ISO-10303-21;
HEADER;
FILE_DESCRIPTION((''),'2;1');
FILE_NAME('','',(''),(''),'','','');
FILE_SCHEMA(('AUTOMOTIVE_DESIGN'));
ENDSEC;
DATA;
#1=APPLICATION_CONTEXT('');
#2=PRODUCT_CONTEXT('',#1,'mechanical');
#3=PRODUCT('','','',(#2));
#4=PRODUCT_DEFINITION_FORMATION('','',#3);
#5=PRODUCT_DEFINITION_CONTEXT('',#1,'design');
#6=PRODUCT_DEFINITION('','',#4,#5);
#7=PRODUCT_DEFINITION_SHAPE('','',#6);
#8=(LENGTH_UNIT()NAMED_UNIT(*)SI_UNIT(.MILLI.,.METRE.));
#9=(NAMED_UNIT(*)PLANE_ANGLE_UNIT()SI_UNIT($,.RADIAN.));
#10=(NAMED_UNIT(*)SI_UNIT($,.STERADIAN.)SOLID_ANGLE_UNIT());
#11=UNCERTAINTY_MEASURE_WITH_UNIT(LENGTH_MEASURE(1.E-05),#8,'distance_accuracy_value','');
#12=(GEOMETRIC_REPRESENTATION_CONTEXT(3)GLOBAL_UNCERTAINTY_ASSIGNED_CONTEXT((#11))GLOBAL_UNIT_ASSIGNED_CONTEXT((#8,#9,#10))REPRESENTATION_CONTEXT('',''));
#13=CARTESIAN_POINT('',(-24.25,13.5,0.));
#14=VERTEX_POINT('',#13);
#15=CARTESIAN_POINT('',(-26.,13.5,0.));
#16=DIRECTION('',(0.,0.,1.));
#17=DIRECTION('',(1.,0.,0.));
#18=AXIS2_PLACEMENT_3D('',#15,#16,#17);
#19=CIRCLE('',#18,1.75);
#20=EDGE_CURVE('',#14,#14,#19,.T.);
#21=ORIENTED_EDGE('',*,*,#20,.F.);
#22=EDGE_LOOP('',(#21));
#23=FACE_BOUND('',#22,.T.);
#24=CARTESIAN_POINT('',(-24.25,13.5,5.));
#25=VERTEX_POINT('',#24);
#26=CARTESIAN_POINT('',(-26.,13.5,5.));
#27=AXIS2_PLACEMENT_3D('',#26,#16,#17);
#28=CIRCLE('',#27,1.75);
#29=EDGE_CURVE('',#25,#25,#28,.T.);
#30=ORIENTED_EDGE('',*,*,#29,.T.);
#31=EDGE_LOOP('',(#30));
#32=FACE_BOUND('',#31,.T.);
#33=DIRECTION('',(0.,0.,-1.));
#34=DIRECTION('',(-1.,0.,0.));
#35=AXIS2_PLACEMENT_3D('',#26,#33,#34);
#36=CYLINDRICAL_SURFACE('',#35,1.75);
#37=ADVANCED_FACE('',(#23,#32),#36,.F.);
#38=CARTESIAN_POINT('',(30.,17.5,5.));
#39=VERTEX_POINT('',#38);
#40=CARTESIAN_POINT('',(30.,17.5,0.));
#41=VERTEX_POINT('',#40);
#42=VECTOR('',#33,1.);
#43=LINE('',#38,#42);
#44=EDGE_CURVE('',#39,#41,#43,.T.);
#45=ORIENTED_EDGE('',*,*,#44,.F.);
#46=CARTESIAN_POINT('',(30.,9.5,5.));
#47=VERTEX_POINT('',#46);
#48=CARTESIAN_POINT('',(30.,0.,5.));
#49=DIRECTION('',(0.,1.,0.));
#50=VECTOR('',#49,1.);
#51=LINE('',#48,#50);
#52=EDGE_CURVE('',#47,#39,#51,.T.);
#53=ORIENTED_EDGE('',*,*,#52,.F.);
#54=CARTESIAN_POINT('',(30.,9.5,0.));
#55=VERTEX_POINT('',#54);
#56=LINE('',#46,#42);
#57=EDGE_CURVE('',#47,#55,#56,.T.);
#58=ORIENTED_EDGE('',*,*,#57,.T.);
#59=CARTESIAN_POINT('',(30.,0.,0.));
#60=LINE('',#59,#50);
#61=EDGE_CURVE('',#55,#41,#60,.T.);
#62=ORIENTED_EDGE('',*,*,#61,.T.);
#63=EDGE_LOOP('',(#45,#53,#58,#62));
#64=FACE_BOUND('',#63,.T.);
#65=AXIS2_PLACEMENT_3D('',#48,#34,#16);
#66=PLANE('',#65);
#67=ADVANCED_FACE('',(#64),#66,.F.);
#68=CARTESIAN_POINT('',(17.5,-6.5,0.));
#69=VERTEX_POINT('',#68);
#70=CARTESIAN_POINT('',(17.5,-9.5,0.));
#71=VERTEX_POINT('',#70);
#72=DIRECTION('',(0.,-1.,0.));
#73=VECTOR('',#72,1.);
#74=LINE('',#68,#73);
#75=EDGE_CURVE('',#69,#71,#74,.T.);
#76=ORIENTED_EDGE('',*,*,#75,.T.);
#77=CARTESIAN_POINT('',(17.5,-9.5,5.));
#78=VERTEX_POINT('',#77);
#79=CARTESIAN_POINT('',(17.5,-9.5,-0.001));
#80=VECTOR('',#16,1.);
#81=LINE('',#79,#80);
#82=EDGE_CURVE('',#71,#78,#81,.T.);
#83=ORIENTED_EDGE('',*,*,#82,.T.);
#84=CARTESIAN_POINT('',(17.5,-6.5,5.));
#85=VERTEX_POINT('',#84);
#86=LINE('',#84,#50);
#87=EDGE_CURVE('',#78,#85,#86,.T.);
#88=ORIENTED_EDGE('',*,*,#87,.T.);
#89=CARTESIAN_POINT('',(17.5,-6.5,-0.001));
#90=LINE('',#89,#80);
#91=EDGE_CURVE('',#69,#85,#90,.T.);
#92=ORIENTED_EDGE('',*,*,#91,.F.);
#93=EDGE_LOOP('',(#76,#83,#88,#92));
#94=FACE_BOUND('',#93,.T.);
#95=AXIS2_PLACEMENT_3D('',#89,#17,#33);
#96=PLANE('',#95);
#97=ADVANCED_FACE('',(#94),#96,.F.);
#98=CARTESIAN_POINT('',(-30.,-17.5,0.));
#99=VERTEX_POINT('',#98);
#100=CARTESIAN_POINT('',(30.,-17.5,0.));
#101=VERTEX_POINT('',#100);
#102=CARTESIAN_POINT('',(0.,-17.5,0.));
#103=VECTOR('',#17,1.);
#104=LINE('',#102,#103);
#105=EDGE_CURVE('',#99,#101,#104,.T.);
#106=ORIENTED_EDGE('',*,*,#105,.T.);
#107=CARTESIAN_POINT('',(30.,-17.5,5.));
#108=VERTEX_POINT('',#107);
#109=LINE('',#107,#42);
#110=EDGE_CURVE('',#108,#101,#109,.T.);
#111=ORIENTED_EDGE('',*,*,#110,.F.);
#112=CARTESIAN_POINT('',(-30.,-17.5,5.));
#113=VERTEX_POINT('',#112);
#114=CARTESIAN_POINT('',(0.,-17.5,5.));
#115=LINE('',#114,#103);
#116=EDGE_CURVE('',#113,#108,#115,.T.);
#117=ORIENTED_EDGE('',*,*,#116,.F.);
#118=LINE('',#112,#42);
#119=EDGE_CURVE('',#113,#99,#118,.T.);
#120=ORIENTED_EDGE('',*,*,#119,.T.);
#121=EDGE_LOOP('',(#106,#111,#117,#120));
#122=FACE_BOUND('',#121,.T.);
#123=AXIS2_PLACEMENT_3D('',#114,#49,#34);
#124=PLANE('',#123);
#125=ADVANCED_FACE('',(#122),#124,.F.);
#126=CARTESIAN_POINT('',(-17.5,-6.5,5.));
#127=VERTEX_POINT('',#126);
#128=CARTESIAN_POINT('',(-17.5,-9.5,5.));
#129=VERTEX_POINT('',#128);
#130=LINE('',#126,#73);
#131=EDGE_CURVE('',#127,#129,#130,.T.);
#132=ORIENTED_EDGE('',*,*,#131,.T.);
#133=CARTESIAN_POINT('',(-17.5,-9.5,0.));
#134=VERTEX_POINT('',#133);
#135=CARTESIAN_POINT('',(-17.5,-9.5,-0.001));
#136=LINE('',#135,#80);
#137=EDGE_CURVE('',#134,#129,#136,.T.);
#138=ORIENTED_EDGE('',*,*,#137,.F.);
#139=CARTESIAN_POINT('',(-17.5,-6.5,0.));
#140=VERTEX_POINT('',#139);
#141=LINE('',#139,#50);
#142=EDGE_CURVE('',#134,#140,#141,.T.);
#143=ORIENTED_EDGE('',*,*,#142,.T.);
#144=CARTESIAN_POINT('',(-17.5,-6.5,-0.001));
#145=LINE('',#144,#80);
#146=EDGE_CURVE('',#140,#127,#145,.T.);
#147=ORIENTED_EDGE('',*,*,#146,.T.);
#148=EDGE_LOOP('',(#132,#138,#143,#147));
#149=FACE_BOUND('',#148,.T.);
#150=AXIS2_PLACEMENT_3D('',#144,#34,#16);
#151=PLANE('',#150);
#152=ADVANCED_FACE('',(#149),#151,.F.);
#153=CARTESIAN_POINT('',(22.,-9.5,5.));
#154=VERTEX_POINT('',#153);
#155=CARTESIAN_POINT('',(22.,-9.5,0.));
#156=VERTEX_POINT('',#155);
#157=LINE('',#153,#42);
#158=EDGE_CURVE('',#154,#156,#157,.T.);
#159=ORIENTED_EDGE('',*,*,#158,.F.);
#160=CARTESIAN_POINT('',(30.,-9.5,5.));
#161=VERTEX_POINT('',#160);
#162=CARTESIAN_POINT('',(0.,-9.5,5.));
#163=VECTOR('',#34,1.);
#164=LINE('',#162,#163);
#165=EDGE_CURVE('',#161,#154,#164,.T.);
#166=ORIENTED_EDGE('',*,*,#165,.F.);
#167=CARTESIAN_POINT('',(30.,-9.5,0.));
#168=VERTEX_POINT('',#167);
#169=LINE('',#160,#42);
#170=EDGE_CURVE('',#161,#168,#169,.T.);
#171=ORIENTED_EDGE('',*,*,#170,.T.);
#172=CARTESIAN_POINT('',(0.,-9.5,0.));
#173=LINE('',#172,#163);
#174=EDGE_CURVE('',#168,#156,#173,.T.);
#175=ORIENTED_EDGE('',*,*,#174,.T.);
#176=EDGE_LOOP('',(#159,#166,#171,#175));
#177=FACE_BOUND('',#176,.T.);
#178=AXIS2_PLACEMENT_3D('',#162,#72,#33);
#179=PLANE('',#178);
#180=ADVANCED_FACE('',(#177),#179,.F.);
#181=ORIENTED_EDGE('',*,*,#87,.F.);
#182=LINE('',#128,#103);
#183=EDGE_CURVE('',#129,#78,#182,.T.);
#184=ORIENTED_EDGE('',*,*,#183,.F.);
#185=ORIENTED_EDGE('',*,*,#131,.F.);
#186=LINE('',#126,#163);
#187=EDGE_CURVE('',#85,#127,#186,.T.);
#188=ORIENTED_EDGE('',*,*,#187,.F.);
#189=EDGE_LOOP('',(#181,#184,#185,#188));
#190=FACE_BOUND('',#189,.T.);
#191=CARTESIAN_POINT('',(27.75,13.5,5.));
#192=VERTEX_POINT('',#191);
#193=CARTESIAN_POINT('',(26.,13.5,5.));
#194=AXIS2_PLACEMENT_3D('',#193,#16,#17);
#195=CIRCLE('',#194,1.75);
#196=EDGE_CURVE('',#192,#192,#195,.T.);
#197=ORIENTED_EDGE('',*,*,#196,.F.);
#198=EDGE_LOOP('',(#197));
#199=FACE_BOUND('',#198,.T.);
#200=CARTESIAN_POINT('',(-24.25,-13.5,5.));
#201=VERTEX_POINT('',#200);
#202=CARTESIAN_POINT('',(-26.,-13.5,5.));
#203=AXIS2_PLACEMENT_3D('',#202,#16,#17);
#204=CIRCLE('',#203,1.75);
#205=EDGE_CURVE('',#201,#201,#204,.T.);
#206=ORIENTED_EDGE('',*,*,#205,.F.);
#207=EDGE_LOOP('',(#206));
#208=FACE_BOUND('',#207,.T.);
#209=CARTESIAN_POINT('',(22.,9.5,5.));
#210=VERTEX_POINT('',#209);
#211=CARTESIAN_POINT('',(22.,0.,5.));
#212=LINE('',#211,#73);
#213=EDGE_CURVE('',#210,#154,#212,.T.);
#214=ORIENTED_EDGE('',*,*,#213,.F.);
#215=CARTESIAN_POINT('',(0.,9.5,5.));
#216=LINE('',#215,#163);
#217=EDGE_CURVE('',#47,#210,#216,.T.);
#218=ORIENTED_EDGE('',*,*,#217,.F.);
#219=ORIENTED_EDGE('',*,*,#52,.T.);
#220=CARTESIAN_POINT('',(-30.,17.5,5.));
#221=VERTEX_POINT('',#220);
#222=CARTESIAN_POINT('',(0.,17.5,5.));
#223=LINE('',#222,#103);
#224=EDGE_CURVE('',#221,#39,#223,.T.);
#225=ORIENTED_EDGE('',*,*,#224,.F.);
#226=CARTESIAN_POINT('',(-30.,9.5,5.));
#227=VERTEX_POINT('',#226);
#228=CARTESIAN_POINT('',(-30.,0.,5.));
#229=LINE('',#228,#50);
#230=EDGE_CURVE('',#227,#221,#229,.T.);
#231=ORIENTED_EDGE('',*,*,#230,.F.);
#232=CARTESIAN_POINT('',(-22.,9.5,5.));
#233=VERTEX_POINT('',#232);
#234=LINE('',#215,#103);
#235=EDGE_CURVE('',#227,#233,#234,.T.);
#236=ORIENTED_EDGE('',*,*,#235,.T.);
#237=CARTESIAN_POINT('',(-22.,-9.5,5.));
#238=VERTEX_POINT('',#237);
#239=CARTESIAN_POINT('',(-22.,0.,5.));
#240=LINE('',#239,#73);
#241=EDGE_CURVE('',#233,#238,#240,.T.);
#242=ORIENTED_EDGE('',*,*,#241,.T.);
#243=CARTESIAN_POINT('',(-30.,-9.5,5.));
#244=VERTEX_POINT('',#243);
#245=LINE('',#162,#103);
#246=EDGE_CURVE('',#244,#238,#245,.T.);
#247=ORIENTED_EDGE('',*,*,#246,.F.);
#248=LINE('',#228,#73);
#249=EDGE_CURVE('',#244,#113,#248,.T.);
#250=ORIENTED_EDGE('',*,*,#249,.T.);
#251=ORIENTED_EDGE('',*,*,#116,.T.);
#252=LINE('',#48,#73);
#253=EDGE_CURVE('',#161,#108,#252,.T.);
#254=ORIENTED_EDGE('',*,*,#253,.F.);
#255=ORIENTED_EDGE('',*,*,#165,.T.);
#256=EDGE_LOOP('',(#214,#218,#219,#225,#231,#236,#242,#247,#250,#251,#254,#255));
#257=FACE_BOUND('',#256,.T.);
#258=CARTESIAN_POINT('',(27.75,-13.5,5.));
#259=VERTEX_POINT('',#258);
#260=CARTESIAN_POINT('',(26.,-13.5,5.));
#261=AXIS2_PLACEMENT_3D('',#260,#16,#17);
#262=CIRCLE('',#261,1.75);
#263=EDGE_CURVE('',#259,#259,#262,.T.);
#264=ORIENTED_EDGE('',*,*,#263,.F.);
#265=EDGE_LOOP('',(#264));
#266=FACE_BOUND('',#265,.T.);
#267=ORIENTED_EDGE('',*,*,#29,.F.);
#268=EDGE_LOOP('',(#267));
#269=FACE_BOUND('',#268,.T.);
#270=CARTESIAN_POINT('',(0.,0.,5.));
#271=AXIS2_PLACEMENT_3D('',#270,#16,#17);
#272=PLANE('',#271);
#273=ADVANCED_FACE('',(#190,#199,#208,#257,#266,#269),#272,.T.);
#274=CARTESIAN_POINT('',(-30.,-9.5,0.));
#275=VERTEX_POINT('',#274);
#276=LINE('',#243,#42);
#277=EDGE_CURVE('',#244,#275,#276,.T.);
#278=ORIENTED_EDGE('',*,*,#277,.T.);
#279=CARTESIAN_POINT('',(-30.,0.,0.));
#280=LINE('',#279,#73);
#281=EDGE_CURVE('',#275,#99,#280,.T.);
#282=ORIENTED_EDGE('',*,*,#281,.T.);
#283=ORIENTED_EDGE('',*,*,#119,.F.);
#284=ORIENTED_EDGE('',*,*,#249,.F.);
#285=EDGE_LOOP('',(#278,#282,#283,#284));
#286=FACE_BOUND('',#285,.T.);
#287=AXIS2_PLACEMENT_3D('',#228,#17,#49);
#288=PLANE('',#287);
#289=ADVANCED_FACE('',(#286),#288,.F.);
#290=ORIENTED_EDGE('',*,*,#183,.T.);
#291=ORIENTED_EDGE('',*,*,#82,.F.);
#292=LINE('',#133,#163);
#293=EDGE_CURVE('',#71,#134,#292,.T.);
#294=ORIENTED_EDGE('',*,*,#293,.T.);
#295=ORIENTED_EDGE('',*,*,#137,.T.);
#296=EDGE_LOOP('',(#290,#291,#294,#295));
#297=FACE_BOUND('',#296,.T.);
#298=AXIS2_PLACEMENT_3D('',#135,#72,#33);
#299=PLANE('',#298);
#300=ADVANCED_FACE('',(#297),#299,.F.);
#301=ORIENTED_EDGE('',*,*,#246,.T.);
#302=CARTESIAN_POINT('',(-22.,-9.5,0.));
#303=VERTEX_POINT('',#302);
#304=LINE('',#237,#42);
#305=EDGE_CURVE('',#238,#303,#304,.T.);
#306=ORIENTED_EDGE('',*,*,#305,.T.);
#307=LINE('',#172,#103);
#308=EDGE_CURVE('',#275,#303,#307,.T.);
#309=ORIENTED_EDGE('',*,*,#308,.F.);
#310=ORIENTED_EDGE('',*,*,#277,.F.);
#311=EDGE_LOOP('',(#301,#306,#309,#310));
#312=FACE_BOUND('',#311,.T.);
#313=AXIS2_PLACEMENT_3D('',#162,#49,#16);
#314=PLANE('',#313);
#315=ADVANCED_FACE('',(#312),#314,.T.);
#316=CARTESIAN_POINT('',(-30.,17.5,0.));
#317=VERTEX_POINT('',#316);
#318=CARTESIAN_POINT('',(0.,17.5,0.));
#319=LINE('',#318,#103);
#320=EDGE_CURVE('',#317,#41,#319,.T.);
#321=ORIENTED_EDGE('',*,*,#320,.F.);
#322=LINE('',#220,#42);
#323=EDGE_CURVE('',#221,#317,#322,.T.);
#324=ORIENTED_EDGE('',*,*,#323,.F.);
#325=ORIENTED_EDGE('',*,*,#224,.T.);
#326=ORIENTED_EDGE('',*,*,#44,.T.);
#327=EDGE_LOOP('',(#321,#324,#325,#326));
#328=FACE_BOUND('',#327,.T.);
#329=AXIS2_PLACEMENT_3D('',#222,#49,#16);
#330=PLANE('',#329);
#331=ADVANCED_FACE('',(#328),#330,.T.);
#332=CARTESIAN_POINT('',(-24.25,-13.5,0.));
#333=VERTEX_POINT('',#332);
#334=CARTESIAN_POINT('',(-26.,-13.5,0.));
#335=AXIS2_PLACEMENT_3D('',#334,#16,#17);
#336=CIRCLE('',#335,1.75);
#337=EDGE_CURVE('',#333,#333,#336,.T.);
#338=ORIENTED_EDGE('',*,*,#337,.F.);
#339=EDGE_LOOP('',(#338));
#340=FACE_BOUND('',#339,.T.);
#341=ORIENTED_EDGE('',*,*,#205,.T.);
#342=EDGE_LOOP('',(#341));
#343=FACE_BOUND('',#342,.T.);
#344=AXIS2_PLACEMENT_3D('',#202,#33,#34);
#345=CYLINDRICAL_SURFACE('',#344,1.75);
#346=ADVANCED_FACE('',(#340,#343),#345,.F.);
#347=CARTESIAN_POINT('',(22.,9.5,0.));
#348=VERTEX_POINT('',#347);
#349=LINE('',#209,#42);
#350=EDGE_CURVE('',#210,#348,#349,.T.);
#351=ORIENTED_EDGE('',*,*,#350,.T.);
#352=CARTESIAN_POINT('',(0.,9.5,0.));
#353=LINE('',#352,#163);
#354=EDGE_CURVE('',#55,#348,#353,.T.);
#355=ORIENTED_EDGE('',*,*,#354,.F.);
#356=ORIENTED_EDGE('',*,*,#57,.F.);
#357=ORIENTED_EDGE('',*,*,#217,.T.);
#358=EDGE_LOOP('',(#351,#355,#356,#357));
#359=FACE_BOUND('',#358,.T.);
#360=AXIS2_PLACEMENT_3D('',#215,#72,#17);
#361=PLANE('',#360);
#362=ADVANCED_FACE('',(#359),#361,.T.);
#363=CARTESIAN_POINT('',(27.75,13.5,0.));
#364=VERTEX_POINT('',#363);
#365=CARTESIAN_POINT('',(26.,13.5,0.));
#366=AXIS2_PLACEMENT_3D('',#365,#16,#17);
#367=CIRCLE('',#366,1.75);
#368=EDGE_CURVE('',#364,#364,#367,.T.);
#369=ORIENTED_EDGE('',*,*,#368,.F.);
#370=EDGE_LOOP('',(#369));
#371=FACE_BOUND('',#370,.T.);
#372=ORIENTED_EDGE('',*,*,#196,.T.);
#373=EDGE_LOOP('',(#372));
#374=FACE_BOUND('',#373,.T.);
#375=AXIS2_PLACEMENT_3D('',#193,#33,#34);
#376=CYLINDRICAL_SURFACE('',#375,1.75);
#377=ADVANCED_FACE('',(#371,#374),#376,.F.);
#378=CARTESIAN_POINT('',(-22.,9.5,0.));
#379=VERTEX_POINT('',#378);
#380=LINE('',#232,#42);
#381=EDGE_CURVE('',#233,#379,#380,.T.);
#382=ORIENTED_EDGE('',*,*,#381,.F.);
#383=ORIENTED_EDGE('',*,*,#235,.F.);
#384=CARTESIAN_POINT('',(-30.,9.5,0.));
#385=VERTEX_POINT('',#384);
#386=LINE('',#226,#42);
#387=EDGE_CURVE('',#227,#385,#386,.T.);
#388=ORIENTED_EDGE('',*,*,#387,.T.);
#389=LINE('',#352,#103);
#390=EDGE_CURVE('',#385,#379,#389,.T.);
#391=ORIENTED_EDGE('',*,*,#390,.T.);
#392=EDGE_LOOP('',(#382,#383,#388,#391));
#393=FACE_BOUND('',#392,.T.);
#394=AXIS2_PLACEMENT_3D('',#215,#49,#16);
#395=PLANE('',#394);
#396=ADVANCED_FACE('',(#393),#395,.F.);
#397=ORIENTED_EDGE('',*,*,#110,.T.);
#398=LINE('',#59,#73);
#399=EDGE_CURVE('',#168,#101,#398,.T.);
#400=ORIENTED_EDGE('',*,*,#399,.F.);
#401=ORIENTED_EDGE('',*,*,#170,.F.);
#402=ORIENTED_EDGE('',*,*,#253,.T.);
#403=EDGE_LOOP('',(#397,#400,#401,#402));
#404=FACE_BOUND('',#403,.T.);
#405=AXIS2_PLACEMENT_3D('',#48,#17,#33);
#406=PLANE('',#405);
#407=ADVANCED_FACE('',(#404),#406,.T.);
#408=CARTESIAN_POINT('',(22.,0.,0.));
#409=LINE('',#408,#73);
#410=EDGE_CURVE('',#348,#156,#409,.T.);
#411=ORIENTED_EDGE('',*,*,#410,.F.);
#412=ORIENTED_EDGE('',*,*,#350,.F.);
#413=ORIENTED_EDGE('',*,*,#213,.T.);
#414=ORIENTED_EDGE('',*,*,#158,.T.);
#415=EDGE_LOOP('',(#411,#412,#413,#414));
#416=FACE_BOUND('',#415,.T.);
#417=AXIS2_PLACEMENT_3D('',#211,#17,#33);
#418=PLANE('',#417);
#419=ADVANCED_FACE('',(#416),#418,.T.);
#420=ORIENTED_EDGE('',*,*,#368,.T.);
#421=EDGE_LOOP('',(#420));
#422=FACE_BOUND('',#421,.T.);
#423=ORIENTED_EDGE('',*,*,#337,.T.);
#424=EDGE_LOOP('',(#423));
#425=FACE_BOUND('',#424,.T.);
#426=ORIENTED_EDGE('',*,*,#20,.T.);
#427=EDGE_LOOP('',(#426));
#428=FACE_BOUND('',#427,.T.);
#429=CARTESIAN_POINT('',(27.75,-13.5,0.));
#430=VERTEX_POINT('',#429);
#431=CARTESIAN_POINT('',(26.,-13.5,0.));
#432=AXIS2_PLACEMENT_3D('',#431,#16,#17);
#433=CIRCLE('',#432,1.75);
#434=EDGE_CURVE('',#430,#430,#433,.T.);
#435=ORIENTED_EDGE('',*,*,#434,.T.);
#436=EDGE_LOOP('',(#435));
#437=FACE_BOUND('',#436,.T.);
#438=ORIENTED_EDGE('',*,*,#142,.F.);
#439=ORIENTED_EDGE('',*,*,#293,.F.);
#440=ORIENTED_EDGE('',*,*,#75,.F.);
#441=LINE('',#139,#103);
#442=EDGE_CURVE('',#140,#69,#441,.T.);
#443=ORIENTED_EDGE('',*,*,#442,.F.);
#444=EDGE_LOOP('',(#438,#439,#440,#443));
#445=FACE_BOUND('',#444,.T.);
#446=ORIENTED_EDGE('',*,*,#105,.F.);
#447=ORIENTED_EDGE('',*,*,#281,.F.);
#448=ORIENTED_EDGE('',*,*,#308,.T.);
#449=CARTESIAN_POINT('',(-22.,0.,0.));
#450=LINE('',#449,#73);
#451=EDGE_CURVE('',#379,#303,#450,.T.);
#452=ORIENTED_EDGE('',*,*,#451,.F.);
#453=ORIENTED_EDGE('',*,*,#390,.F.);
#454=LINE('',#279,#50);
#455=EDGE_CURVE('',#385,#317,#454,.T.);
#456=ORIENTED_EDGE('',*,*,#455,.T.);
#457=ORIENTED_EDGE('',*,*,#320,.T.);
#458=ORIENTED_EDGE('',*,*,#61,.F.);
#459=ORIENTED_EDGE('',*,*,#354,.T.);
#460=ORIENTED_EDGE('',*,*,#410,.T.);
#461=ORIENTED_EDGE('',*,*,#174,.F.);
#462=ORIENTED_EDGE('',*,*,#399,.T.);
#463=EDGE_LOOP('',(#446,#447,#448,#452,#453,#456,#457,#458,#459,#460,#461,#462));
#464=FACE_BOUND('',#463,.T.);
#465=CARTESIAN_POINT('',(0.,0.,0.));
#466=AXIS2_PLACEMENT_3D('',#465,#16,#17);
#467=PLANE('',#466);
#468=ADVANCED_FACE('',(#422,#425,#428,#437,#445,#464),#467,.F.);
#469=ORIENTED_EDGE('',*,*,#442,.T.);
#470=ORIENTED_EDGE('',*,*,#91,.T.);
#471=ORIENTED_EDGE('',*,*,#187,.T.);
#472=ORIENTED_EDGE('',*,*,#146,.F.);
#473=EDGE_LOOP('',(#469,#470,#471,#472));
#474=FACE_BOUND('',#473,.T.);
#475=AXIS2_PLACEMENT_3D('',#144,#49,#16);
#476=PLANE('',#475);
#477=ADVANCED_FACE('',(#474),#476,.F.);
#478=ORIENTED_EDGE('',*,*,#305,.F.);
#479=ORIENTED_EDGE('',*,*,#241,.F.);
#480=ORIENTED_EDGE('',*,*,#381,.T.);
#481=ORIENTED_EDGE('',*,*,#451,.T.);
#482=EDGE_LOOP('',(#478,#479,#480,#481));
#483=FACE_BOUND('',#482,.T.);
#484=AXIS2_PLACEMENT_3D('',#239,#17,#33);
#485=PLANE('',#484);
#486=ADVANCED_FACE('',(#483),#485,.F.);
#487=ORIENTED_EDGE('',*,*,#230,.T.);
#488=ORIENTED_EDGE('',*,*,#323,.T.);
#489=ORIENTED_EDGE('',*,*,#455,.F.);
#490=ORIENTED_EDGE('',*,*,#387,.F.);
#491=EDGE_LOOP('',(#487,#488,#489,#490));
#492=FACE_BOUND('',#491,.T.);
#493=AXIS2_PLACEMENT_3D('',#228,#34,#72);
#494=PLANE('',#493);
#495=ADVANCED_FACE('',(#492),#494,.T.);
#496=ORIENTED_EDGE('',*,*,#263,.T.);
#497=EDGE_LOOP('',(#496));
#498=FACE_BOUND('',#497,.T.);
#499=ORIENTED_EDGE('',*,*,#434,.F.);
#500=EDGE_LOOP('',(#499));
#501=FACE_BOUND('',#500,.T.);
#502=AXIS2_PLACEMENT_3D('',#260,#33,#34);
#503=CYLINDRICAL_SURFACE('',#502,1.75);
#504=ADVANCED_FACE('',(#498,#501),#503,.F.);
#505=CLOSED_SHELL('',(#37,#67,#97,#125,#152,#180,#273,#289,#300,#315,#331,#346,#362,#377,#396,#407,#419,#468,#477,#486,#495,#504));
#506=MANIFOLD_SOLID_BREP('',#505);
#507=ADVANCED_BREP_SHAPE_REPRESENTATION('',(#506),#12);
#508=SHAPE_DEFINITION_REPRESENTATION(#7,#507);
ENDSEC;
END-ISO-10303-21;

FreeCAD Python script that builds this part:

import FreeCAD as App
import Part
import Sketcher
Q = App.Units.Quantity


def add_polygon(sketch, points):
    """Adds a closed chain of lines whose ends are joined by coincident constraints."""
    first, n = sketch.GeometryCount, len(points)
    for a, b in zip(points, points[1:] + points[:1]):
        sketch.addGeometry(Part.LineSegment(App.Vector(*a, 0), App.Vector(*b, 0)), False)
    for i in range(n):
        sketch.addConstraint(Sketcher.Constraint("Coincident", first + i, 2, first + (i + 1) % n, 1))

doc = App.newDocument("Part")
body = doc.addObject("PartDesign::Body", "Body")

sketch1 = body.newObject("Sketcher::SketchObject", "Sketch")
sketch1.AttachmentSupport = (doc.getObject("XY_Plane"), [""])
sketch1.MapMode = "FlatFace"
add_polygon(sketch1, [(-30, 17.5), (-30, 9.5), (-22, 9.5), (-22, -9.5), (-30, -9.5), (-30, -17.5), (30, -17.5), (30, -9.5), (22, -9.5), (22, 9.5), (30, 9.5), (30, 17.5)])
sketch1.addGeometry(Part.Circle(App.Vector(-26, -13.5, 0), App.Vector(0, 0, 1), 1.8), False)
sketch1.addGeometry(Part.Circle(App.Vector(26, -13.5, 0), App.Vector(0, 0, 1), 1.8), False)
sketch1.addGeometry(Part.Circle(App.Vector(-26, 13.5, 0), App.Vector(0, 0, 1), 1.8), False)
sketch1.addGeometry(Part.Circle(App.Vector(26, 13.5, 0), App.Vector(0, 0, 1), 1.8), False)
sketch1.addConstraint([
    Sketcher.Constraint("Vertical", 0),
    Sketcher.Constraint("Horizontal", 1),
    Sketcher.Constraint("Vertical", 2),
    Sketcher.Constraint("Horizontal", 3),
    Sketcher.Constraint("Vertical", 4),
    Sketcher.Constraint("Horizontal", 5),
    Sketcher.Constraint("Vertical", 6),
    Sketcher.Constraint("Horizontal", 7),
    Sketcher.Constraint("Vertical", 8),
    Sketcher.Constraint("Horizontal", 9),
    Sketcher.Constraint("Vertical", 10),
    Sketcher.Constraint("Horizontal", 11),
    Sketcher.Constraint("Equal", 12, 13),
    Sketcher.Constraint("Equal", 13, 14),
    Sketcher.Constraint("Equal", 14, 15),
    Sketcher.Constraint("Symmetric", 13, 3, 14, 3, -1, 1),
    Sketcher.Constraint("Symmetric", 12, 3, 15, 3, -1, 1),
    Sketcher.Constraint("Symmetric", 0, 2, 6, 2, -1, 1),
    Sketcher.Constraint("Symmetric", 2, 2, 8, 2, -1, 1),
    Sketcher.Constraint("Symmetric", 4, 2, 10, 2, -1, 1),
    Sketcher.Constraint("Symmetric", 12, 3, 13, 3, -2),
    Sketcher.Constraint("Symmetric", 3, 2, 6, 2, -2),
    Sketcher.Constraint("Equal", 9, 0),
    Sketcher.Constraint("Diameter", 12, Q("3.5 mm")),
    Sketcher.Constraint("DistanceX", 1, 1, 1, 2, Q("8 mm")),
    Sketcher.Constraint("DistanceX", 5, 1, 5, 2, Q("60 mm")),
    Sketcher.Constraint("DistanceY", 2, 2, 2, 1, Q("19 mm")),
    Sketcher.Constraint("DistanceX", 12, 3, -1, 1, Q("26 mm")),
    Sketcher.Constraint("DistanceY", 12, 3, 14, 3, Q("27 mm")),
])
pad1 = body.newObject("PartDesign::Pad", "Pad")
pad1.Profile = sketch1
pad1.Length = 5

sketch2 = body.newObject("Sketcher::SketchObject", "Sketch001")
sketch2.AttachmentSupport = (doc.getObject("XY_Plane"), [""])
sketch2.MapMode = "FlatFace"
sketch2.AttachmentOffset = App.Placement(App.Vector(0, 0, 5), App.Rotation())
add_polygon(sketch2, [(-17.5, -6.5), (-17.5, -9.5), (17.5, -9.5), (17.5, -6.5)])
sketch2.addConstraint([
    Sketcher.Constraint("Vertical", 0),
    Sketcher.Constraint("Horizontal", 1),
    Sketcher.Constraint("Vertical", 2),
    Sketcher.Constraint("Horizontal", 3),
    Sketcher.Constraint("DistanceX", 1, 1, 1, 2, Q("35 mm")),
    Sketcher.Constraint("DistanceY", 0, 2, 0, 1, Q("3 mm")),
    Sketcher.Constraint("DistanceX", 0, 2, -1, 1, Q("17.5 mm")),
    Sketcher.Constraint("DistanceY", 0, 2, -1, 1, Q("9.5 mm")),
])
pocket1 = body.newObject("PartDesign::Pocket", "Pocket")
pocket1.Profile = sketch2
pocket1.Type = "UpToFirst"

doc.recompute()
